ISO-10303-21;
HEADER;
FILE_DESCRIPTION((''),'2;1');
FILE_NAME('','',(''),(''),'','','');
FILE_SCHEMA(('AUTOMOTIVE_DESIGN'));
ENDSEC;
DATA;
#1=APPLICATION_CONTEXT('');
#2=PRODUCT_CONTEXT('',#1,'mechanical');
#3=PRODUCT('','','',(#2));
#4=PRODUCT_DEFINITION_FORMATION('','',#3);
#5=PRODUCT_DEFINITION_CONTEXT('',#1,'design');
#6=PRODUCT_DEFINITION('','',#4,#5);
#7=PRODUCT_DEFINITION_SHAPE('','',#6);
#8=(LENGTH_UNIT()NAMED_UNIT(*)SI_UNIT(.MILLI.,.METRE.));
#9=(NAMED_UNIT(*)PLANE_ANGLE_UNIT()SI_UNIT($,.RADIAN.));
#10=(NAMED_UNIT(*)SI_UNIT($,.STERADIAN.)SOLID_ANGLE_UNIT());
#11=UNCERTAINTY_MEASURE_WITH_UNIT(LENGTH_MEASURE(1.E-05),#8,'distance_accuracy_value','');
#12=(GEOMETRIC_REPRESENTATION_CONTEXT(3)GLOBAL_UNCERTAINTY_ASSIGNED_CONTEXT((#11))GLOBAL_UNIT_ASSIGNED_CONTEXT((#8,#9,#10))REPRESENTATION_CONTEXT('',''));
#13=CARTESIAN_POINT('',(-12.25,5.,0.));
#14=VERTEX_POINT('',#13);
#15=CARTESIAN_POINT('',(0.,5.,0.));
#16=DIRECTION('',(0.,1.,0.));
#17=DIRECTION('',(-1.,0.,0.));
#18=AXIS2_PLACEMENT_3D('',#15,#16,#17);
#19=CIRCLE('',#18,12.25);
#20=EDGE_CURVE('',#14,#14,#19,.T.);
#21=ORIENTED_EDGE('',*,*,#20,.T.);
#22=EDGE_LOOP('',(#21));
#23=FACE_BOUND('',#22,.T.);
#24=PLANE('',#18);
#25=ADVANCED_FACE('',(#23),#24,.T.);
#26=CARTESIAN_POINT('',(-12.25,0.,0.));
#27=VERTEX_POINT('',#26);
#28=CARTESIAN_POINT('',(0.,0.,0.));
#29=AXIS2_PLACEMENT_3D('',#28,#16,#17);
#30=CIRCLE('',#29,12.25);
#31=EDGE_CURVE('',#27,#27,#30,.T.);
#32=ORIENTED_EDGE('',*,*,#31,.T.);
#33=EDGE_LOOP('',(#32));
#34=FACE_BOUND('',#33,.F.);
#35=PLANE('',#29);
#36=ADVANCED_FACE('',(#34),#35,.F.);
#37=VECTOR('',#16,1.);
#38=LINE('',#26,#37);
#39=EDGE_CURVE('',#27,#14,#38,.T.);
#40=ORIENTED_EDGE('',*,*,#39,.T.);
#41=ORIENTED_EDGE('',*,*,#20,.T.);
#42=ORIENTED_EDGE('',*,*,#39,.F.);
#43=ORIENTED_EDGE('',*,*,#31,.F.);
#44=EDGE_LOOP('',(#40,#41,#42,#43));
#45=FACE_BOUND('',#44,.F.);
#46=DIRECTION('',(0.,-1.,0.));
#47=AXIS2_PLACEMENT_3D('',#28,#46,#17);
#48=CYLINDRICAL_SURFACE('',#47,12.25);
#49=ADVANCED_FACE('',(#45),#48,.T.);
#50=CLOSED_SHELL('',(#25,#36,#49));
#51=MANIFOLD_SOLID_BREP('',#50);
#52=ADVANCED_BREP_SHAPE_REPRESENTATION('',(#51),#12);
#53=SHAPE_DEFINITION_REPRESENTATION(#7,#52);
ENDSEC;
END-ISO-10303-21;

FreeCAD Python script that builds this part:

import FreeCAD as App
import Part
import Sketcher
Q = App.Units.Quantity

doc = App.newDocument("Part")
body = doc.addObject("PartDesign::Body", "Body")

sketch1 = body.newObject("Sketcher::SketchObject", "Sketch")
sketch1.AttachmentSupport = (doc.getObject("XZ_Plane"), [""])
sketch1.MapMode = "FlatFace"
sketch1.addGeometry(Part.Circle(App.Vector(0, 0, 0), App.Vector(0, 0, 1), 12), False)
sketch1.addConstraint([
    Sketcher.Constraint("Coincident", 0, 3, -1, 1),
    Sketcher.Constraint("Diameter", 0, Q("24.5 mm")),
])
pad1 = body.newObject("PartDesign::Pad", "Pad")
pad1.Profile = sketch1
pad1.Length = 5
pad1.Reversed = True

doc.recompute()
